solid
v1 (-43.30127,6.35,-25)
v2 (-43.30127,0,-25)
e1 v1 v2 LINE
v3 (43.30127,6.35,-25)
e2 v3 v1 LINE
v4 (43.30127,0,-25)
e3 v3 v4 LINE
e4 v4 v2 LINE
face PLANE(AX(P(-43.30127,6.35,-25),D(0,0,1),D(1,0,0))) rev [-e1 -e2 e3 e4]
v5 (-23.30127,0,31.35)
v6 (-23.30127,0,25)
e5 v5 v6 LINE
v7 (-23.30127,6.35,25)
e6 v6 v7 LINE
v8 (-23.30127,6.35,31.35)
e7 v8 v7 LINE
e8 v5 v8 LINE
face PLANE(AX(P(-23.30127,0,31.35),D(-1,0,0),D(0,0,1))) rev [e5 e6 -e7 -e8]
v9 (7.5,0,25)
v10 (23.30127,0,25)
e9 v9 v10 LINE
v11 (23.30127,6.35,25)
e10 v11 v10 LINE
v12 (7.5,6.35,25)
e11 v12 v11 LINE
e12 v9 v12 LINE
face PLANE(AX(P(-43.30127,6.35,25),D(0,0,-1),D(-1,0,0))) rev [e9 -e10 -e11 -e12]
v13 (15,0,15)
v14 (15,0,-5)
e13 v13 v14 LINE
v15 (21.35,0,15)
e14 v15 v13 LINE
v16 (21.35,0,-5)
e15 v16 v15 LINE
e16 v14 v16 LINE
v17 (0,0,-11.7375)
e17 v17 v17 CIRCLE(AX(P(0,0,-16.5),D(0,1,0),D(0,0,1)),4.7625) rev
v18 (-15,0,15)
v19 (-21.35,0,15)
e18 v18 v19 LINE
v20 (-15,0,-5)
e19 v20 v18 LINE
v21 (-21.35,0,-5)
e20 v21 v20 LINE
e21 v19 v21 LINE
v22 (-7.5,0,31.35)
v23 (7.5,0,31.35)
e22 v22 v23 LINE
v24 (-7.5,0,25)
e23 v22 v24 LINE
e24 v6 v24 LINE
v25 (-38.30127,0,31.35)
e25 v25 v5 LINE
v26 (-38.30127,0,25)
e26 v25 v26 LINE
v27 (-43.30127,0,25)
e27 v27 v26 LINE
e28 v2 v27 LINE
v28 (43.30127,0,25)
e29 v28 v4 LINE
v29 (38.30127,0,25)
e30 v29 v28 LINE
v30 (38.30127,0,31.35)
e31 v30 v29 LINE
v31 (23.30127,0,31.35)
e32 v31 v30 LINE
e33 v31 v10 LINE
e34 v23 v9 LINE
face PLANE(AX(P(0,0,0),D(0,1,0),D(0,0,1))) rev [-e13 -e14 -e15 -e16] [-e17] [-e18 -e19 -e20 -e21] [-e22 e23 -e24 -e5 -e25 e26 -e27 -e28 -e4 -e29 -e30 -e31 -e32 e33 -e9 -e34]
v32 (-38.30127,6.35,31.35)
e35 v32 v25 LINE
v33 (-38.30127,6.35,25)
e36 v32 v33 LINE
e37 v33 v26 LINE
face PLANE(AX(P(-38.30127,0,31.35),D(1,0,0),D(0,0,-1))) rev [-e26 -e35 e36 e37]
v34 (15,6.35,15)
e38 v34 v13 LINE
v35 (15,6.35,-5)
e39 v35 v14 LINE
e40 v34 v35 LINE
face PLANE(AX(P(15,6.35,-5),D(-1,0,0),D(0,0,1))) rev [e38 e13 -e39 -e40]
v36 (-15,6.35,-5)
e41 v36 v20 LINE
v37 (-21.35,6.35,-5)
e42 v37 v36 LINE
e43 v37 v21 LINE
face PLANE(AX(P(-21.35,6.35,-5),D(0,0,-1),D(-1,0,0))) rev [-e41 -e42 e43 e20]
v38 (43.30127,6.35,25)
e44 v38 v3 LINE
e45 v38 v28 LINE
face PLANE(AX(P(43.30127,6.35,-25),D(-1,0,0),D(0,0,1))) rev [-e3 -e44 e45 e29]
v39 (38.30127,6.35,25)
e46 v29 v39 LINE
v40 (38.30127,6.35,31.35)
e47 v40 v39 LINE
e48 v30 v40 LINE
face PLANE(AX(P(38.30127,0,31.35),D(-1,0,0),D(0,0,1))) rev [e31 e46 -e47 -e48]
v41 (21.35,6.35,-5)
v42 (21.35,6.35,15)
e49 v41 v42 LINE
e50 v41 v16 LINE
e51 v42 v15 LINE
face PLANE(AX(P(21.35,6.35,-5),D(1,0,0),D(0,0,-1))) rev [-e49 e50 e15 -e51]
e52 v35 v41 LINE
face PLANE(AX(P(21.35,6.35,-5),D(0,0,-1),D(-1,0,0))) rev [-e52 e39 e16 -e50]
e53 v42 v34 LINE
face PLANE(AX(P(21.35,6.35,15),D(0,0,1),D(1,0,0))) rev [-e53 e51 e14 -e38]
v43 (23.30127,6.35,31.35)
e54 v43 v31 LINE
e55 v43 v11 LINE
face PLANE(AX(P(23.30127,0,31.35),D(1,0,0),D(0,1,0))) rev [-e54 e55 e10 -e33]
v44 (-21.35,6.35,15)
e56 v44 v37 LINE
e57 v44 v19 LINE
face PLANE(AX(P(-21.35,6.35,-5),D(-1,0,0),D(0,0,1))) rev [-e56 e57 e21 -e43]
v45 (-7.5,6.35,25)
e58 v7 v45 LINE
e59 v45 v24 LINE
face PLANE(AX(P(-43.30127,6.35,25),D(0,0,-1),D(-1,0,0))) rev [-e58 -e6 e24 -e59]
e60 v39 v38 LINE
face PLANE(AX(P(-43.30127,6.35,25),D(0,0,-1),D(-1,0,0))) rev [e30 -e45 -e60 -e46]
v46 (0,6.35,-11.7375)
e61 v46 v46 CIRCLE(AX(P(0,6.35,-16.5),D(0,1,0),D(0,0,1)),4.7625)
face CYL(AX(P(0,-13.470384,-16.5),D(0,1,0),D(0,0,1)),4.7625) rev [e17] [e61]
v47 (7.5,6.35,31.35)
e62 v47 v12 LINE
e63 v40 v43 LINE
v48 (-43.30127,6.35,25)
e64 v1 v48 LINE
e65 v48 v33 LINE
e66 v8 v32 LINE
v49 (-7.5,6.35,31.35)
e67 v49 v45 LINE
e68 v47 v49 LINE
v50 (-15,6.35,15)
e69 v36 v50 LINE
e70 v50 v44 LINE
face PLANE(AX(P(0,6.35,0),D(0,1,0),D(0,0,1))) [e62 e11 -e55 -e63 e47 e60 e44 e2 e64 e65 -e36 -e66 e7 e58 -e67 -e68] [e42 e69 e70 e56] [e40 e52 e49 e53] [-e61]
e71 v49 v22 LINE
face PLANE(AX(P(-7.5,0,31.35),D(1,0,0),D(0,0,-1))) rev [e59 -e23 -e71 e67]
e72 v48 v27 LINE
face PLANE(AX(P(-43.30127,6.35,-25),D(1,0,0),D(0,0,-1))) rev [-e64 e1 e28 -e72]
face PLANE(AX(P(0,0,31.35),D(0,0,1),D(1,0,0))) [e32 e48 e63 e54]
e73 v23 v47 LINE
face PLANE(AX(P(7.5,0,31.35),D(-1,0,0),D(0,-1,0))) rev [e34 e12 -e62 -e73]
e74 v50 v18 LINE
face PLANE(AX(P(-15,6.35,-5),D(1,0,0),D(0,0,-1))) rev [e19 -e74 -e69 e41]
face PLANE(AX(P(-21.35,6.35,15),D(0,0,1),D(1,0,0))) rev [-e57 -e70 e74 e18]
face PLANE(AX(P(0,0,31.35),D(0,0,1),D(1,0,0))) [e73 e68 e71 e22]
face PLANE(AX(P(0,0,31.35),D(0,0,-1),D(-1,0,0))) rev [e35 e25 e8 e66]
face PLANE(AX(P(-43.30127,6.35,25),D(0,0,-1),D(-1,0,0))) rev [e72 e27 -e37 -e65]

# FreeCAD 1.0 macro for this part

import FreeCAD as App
import Part
import Sketcher
from FreeCAD import Vector

doc = App.newDocument("Part")
body = doc.addObject("PartDesign::Body", "Body")

# Sketch on XZ plane
sketch1 = body.newObject("Sketcher::SketchObject", "Sketch")
sketch1.AttachmentSupport = (doc.getObject("XZ_Plane"), [""])
sketch1.MapMode = "FlatFace"
sketch1.addGeometry([
    Part.LineSegment(Vector(-43, -25, 0), Vector(-43, 25, 0)),
    Part.LineSegment(Vector(-43, 25, 0), Vector(43, 25, 0)),
    Part.LineSegment(Vector(43, 25, 0), Vector(43, -25, 0)),
    Part.LineSegment(Vector(43, -25, 0), Vector(-43, -25, 0)),
], False)
sketch1.addConstraint([
    Sketcher.Constraint("Coincident", 0, 2, 1, 1),
    Sketcher.Constraint("Coincident", 1, 2, 2, 1),
    Sketcher.Constraint("Coincident", 2, 2, 3, 1),
    Sketcher.Constraint("Coincident", 3, 2, 0, 1),
    Sketcher.Constraint("Vertical", 0),
    Sketcher.Constraint("Horizontal", 1),
    Sketcher.Constraint("Vertical", 2),
    Sketcher.Constraint("Horizontal", 3),
    Sketcher.Constraint("Symmetric", 0, 2, 2, 2, -1, 1),
    Sketcher.Constraint("DistanceY", 0, 1, 0, 2, 50.0),
    Sketcher.Constraint("DistanceX", 1, 1, 1, 2, 86.60254),
])
pad1 = body.newObject("PartDesign::Pad", "Pad")
pad1.Profile = sketch1
pad1.Length = 6.35
pad1.Reversed = True

# Sketch on XZ plane
sketch2 = body.newObject("Sketcher::SketchObject", "Sketch001")
sketch2.AttachmentSupport = (doc.getObject("XZ_Plane"), [""])
sketch2.MapMode = "FlatFace"
sketch2.AttachmentOffset = App.Placement(Vector(0, 0, -6.35), App.Rotation())
sketch2.addGeometry(Part.Circle(Vector(0, -16.5, 0), Vector(0, 0, 1), 4.8), False)
sketch2.addConstraint([
    Sketcher.Constraint("PointOnObject", 0, 3, -2),
    Sketcher.Constraint("Diameter", 0, 9.525),
    Sketcher.Constraint("DistanceY", 0, 3, -1, 1, 16.5),
])
pocket1 = body.newObject("PartDesign::Pocket", "Pocket")
pocket1.Profile = sketch2
pocket1.Length = 6.35
pocket1.Reversed = True

# Sketch on XY plane
sketch3 = body.newObject("Sketcher::SketchObject", "Sketch002")
sketch3.AttachmentSupport = (doc.getObject("XY_Plane"), [""])
sketch3.MapMode = "FlatFace"
sketch3.AttachmentOffset = App.Placement(Vector(0, 0, 25), App.Rotation())
sketch3.addGeometry([
    Part.LineSegment(Vector(23, 6, 0), Vector(23, 0, 0)),  # 0
    Part.LineSegment(Vector(23, 0, 0), Vector(38, 0, 0)),  # 1
    Part.LineSegment(Vector(38, 0, 0), Vector(38, 6, 0)),  # 2
    Part.LineSegment(Vector(38, 6, 0), Vector(23, 6, 0)),  # 3
    Part.LineSegment(Vector(-38, 6, 0), Vector(-38, 0, 0)),  # 4
    Part.LineSegment(Vector(-38, 0, 0), Vector(-23, 0, 0)),  # 5
    Part.LineSegment(Vector(-23, 0, 0), Vector(-23, 6, 0)),  # 6
    Part.LineSegment(Vector(-23, 6, 0), Vector(-38, 6, 0)),  # 7
    Part.LineSegment(Vector(-8, 6, 0), Vector(-8, 0, 0)),  # 8
    Part.LineSegment(Vector(-8, 0, 0), Vector(8, 0, 0)),  # 9
    Part.LineSegment(Vector(8, 0, 0), Vector(8, 6, 0)),  # 10
    Part.LineSegment(Vector(8, 6, 0), Vector(-8, 6, 0)),  # 11
], False)
sketch3.addConstraint([
    Sketcher.Constraint("Coincident", 0, 2, 1, 1),
    Sketcher.Constraint("Coincident", 1, 2, 2, 1),
    Sketcher.Constraint("Coincident", 2, 2, 3, 1),
    Sketcher.Constraint("Coincident", 3, 2, 0, 1),
    Sketcher.Constraint("Coincident", 4, 2, 5, 1),
    Sketcher.Constraint("Coincident", 5, 2, 6, 1),
    Sketcher.Constraint("Coincident", 6, 2, 7, 1),
    Sketcher.Constraint("Coincident", 7, 2, 4, 1),
    Sketcher.Constraint("Coincident", 8, 2, 9, 1),
    Sketcher.Constraint("Coincident", 9, 2, 10, 1),
    Sketcher.Constraint("Coincident", 10, 2, 11, 1),
    Sketcher.Constraint("Coincident", 11, 2, 8, 1),
    Sketcher.Constraint("Vertical", 0),
    Sketcher.Constraint("Horizontal", 1),
    Sketcher.Constraint("Vertical", 2),
    Sketcher.Constraint("Horizontal", 3),
    Sketcher.Constraint("Vertical", 4),
    Sketcher.Constraint("Horizontal", 5),
    Sketcher.Constraint("Vertical", 6),
    Sketcher.Constraint("Horizontal", 7),
    Sketcher.Constraint("Vertical", 8),
    Sketcher.Constraint("Horizontal", 9),
    Sketcher.Constraint("Vertical", 10),
    Sketcher.Constraint("Horizontal", 11),
    Sketcher.Constraint("Symmetric", 1, 2, 4, 2, -1, 1),
    Sketcher.Constraint("Symmetric", 8, 2, 9, 2, -1, 1),
    Sketcher.Constraint("Symmetric", 0, 2, 5, 2, -2),
    Sketcher.Constraint("Horizontal", 3, 2, 6, 2),
    Sketcher.Constraint("Horizontal", 7, 2, 10, 2),
    Sketcher.Constraint("Equal", 7, 9),
    Sketcher.Constraint("DistanceX", 1, 1, 1, 2, 15.0),
    Sketcher.Constraint("DistanceY", 0, 2, 0, 1, 6.35),
    Sketcher.Constraint("DistanceX", -1, 1, 0, 2, 23.30127),
])
pad2 = body.newObject("PartDesign::Pad", "Pad001")
pad2.Profile = sketch3
pad2.Length = 6.35

# Sketch on XZ plane
sketch4 = body.newObject("Sketcher::SketchObject", "Sketch003")
sketch4.AttachmentSupport = (doc.getObject("XZ_Plane"), [""])
sketch4.MapMode = "FlatFace"
sketch4.addGeometry([
    Part.LineSegment(Vector(15, 15, 0), Vector(15, -5, 0)),  # 0
    Part.LineSegment(Vector(15, -5, 0), Vector(21, -5, 0)),  # 1
    Part.LineSegment(Vector(21, -5, 0), Vector(21, 15, 0)),  # 2
    Part.LineSegment(Vector(21, 15, 0), Vector(15, 15, 0)),  # 3
    Part.LineSegment(Vector(-21, 15, 0), Vector(-21, -5, 0)),  # 4
    Part.LineSegment(Vector(-21, -5, 0), Vector(-15, -5, 0)),  # 5
    Part.LineSegment(Vector(-15, -5, 0), Vector(-15, 15, 0)),  # 6
    Part.LineSegment(Vector(-15, 15, 0), Vector(-21, 15, 0)),  # 7
], False)
sketch4.addConstraint([
    Sketcher.Constraint("Coincident", 0, 2, 1, 1),
    Sketcher.Constraint("Coincident", 1, 2, 2, 1),
    Sketcher.Constraint("Coincident", 2, 2, 3, 1),
    Sketcher.Constraint("Coincident", 3, 2, 0, 1),
    Sketcher.Constraint("Coincident", 4, 2, 5, 1),
    Sketcher.Constraint("Coincident", 5, 2, 6, 1),
    Sketcher.Constraint("Coincident", 6, 2, 7, 1),
    Sketcher.Constraint("Coincident", 7, 2, 4, 1),
    Sketcher.Constraint("Vertical", 0),
    Sketcher.Constraint("Horizontal", 1),
    Sketcher.Constraint("Vertical", 2),
    Sketcher.Constraint("Horizontal", 3),
    Sketcher.Constraint("Vertical", 4),
    Sketcher.Constraint("Horizontal", 5),
    Sketcher.Constraint("Vertical", 6),
    Sketcher.Constraint("Horizontal", 7),
    Sketcher.Constraint("Symmetric", 1, 2, 4, 2, -2),
    Sketcher.Constraint("Symmetric", 3, 2, 6, 2, -2),
    Sketcher.Constraint("DistanceY", 0, 2, 0, 1, 20.0),
    Sketcher.Constraint("DistanceX", -1, 1, 0, 2, 15.0),
    Sketcher.Constraint("DistanceY", 0, 2, -1, 1, 5.0),
    Sketcher.Constraint("DistanceX", 1, 1, 1, 2, 6.35),
])
pocket2 = body.newObject("PartDesign::Pocket", "Pocket001")
pocket2.Profile = sketch4
pocket2.Length = 6.35

doc.recompute()
